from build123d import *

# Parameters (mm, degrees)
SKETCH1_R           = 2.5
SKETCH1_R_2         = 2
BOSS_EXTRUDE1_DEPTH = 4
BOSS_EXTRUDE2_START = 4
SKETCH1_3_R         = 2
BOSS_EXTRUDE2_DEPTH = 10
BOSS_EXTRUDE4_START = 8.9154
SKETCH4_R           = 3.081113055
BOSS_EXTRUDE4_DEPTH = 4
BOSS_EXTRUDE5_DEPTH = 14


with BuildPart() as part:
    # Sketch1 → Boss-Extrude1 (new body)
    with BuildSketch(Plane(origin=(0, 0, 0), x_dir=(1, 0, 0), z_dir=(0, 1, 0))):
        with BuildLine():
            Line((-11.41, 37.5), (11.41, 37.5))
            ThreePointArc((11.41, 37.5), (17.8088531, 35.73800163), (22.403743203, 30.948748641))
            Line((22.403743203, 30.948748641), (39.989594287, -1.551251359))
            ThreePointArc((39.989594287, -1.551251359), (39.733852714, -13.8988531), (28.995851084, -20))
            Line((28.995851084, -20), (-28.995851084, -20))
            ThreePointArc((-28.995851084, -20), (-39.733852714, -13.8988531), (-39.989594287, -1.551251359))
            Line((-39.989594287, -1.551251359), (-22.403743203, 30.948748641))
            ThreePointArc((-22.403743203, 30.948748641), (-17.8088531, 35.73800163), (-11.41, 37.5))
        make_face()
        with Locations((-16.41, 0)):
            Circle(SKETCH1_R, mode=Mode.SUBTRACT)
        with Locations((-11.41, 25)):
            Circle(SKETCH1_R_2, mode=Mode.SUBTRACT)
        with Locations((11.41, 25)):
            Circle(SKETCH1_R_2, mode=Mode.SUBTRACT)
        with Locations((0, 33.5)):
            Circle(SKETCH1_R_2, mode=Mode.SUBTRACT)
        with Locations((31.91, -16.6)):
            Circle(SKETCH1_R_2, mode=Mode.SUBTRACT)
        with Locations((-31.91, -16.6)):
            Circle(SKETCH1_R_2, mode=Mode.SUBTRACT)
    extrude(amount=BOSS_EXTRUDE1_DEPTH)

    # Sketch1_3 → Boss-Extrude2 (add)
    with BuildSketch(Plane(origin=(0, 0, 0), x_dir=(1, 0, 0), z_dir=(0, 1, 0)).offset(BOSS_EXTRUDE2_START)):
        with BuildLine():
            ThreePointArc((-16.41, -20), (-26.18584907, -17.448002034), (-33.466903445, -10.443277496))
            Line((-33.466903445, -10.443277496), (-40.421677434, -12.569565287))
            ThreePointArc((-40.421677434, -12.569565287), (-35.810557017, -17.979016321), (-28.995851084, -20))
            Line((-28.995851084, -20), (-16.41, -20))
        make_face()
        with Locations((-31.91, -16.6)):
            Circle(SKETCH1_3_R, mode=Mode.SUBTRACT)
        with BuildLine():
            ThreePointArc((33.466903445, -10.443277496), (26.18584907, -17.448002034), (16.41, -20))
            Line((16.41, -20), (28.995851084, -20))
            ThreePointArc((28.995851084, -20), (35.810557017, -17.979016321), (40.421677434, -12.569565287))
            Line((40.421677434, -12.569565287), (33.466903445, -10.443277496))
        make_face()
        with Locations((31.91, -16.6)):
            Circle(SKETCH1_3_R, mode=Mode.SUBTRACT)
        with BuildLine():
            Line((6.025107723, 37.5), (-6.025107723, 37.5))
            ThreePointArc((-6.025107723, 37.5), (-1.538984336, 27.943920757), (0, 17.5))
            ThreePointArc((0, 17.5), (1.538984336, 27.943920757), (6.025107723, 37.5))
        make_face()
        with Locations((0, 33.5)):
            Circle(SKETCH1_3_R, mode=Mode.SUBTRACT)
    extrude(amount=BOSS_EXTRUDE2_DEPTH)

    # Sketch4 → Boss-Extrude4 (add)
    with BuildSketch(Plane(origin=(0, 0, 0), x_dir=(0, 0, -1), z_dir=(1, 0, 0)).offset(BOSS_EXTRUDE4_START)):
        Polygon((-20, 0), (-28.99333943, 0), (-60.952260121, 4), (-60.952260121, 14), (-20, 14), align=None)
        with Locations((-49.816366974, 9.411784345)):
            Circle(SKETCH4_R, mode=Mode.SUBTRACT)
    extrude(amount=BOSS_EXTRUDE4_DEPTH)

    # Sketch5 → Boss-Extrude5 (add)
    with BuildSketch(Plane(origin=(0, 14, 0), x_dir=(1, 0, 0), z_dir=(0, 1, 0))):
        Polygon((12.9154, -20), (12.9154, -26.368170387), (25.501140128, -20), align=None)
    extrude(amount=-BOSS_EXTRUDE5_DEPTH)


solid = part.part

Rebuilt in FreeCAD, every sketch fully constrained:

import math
import FreeCAD as App
import Part
import Sketcher

V = App.Vector
Q = App.Units.Quantity


def add_polygon(sketch, points):
    """Adds a closed chain of lines whose ends are joined by coincident constraints."""
    first, n = sketch.GeometryCount, len(points)
    for a, b in zip(points, points[1:] + points[:1]):
        sketch.addGeometry(Part.LineSegment(App.Vector(*a, 0), App.Vector(*b, 0)), False)
    for i in range(n):
        sketch.addConstraint(Sketcher.Constraint("Coincident", first + i, 2, first + (i + 1) % n, 1))

doc = App.newDocument("Part")
body = doc.addObject("PartDesign::Body", "Body")

# Sketch on XZ plane
sketch1 = doc.addObject("Sketcher::SketchObject", "Sketch")
body.addObject(sketch1)
sketch1.AttachmentSupport = (doc.XZ_Plane, [""])
sketch1.MapMode = "FlatFace"
sketch1.addGeometry([
    Part.LineSegment(V(11.4, -37.5, 0), V(-11.4, -37.5, 0)),  # 0
    Part.ArcOfCircle(Part.Circle(V(-11.4, -25, 0), V(0, 0, 1), 12.5), math.radians(-152), math.radians(-90)),  # 1
    Part.LineSegment(V(-22.4, -30.9, 0), V(-40, 1.6, 0)),  # 2
    Part.ArcOfCircle(Part.Circle(V(-29, 7.5, 0), V(0, 0, 1), 12.5), math.radians(90), math.radians(208)),  # 3
    Part.LineSegment(V(-29, 20, 0), V(29, 20, 0)),  # 4
    Part.ArcOfCircle(Part.Circle(V(29, 7.5, 0), V(0, 0, 1), 12.5), math.radians(-28), math.radians(90)),  # 5
    Part.LineSegment(V(40, 1.6, 0), V(22.4, -30.9, 0)),  # 6
    Part.ArcOfCircle(Part.Circle(V(11.4, -25, 0), V(0, 0, 1), 12.5), math.radians(-90), math.radians(-28)),  # 7
    Part.Circle(V(31.9, 16.6, 0), V(0, 0, 1), 2),  # 8
    Part.Circle(V(-31.9, 16.6, 0), V(0, 0, 1), 2),  # 9
    Part.Circle(V(-16.4, 0, 0), V(0, 0, 1), 2.5),  # 10
    Part.Circle(V(11.4, -25, 0), V(0, 0, 1), 2),  # 11
    Part.Circle(V(-11.4, -25, 0), V(0, 0, 1), 2),  # 12
    Part.Circle(V(0, -33.5, 0), V(0, 0, 1), 2),  # 13
], False)
sketch1.addConstraint([
    Sketcher.Constraint("Tangent", 0, 2, 1, 2),
    Sketcher.Constraint("Tangent", 1, 1, 2, 1),
    Sketcher.Constraint("Tangent", 2, 2, 3, 2),
    Sketcher.Constraint("Tangent", 3, 1, 4, 1),
    Sketcher.Constraint("Tangent", 4, 2, 5, 2),
    Sketcher.Constraint("Tangent", 5, 1, 6, 1),
    Sketcher.Constraint("Tangent", 6, 2, 7, 2),
    Sketcher.Constraint("Tangent", 7, 1, 0, 1),
    Sketcher.Constraint("Horizontal", 0),
    Sketcher.Constraint("Horizontal", 4),
    Sketcher.Constraint("Coincident", 11, 3, 7, 3),
    Sketcher.Constraint("Coincident", 12, 3, 1, 3),
    Sketcher.Constraint("Equal", 1, 3),
    Sketcher.Constraint("Equal", 3, 5),
    Sketcher.Constraint("Equal", 5, 7),
    Sketcher.Constraint("Equal", 8, 9),
    Sketcher.Constraint("Equal", 9, 11),
    Sketcher.Constraint("Equal", 11, 12),
    Sketcher.Constraint("Equal", 12, 13),
    Sketcher.Constraint("Symmetric", 8, 3, 9, 3, -2),
    Sketcher.Constraint("Symmetric", 2, 2, 5, 1, -2),
    Sketcher.Constraint("PointOnObject", 10, 3, -1),
    Sketcher.Constraint("PointOnObject", 13, 3, -2),
    Sketcher.Constraint("Diameter", 8, 4.0),
    Sketcher.Constraint("Diameter", 10, 5.0),
    Sketcher.Constraint("Radius", 1, 12.5),
    Sketcher.Constraint("DistanceY", 1, 3, -1, 1, 25.0),
    Sketcher.Constraint("DistanceY", -1, 1, 3, 1, 20.0),
    Sketcher.Constraint("DistanceX", 10, 3, 1, 3, 5.0),
    Sketcher.Constraint("DistanceY", 0, 2, 13, 3, 4.0),
    Sketcher.Constraint("DistanceX", 0, 2, 0, 1, 22.82),
    Sketcher.Constraint("DistanceY", -1, 1, 8, 3, 16.6),
    Sketcher.Constraint("DistanceX", 7, 3, 8, 3, 20.5),
    Sketcher.Constraint("DistanceX", 4, 1, 4, 2, 57.991702),
])
pad1 = doc.addObject("PartDesign::Pad", "Pad")
body.addObject(pad1)
pad1.Profile = sketch1
pad1.Length = 4
pad1.Reversed = True

# Sketch on XZ plane
sketch2 = doc.addObject("Sketcher::SketchObject", "Sketch001")
body.addObject(sketch2)
sketch2.AttachmentSupport = (doc.XZ_Plane, [""])
sketch2.MapMode = "FlatFace"
sketch2.AttachmentOffset = App.Placement(V(0, 0, -4), App.Rotation())
sketch2.addGeometry([
    Part.ArcOfCircle(Part.Circle(V(-16.4, 0, 0), V(0, 0, 1), 20), math.radians(90), math.radians(149)),  # 0
    Part.LineSegment(V(-33.5, 10.4, 0), V(-40.4, 12.6, 0)),  # 1
    Part.ArcOfCircle(Part.Circle(V(-29, 7.5, 0), V(0, 0, 1), 12.5), math.radians(90), math.radians(156)),  # 2
    Part.LineSegment(V(-29, 20, 0), V(-16.4, 20, 0)),  # 3
    Part.Circle(V(-31.9, 16.6, 0), V(0, 0, 1), 2),  # 4
    Part.ArcOfCircle(Part.Circle(V(16.4, 0, 0), V(0, 0, 1), 20), math.radians(31), math.radians(90)),  # 5
    Part.LineSegment(V(16.4, 20, 0), V(29, 20, 0)),  # 6
    Part.ArcOfCircle(Part.Circle(V(29, 7.5, 0), V(0, 0, 1), 12.5), math.radians(24), math.radians(90)),  # 7
    Part.LineSegment(V(40.4, 12.6, 0), V(33.5, 10.4, 0)),  # 8
    Part.Circle(V(31.9, 16.6, 0), V(0, 0, 1), 2),  # 9
    Part.LineSegment(V(6, -37.5, 0), V(-6, -37.5, 0)),  # 10
    Part.ArcOfCircle(Part.Circle(V(-36.2, -17.5, 0), V(0, 0, 1), 36.2), math.radians(-34), math.radians(0)),  # 11
    Part.ArcOfCircle(Part.Circle(V(36.2, -17.5, 0), V(0, 0, 1), 36.2), math.radians(-180), math.radians(-146)),  # 12
    Part.Circle(V(0, -33.5, 0), V(0, 0, 1), 2),  # 13
], False)
sketch2.addConstraint([
    Sketcher.Constraint("Coincident", 0, 2, 1, 1),
    Sketcher.Constraint("Coincident", 1, 2, 2, 2),
    Sketcher.Constraint("Tangent", 2, 1, 3, 1),
    Sketcher.Constraint("Tangent", 3, 2, 0, 1),
    Sketcher.Constraint("Tangent", 5, 2, 6, 1),
    Sketcher.Constraint("Tangent", 6, 2, 7, 2),
    Sketcher.Constraint("Coincident", 7, 1, 8, 1),
    Sketcher.Constraint("Coincident", 8, 2, 5, 1),
    Sketcher.Constraint("Coincident", 10, 2, 11, 1),
    Sketcher.Constraint("Tangent", 11, 2, 12, 1),
    Sketcher.Constraint("Coincident", 12, 2, 10, 1),
    Sketcher.Constraint("Horizontal", 3),
    Sketcher.Constraint("Horizontal", 6),
    Sketcher.Constraint("Horizontal", 10),
    Sketcher.Constraint("Equal", 0, 5),
    Sketcher.Constraint("Equal", 2, 7),
    Sketcher.Constraint("Equal", 4, 9),
    Sketcher.Constraint("Equal", 11, 12),
    Sketcher.Constraint("Equal", 9, 13),
    Sketcher.Constraint("Symmetric", 0, 3, 5, 3, -1, 1),
    Sketcher.Constraint("Symmetric", 2, 3, 7, 3, -2),
    Sketcher.Constraint("Symmetric", 4, 3, 9, 3, -2),
    Sketcher.Constraint("Symmetric", 11, 3, 12, 3, -2),
    Sketcher.Constraint("PointOnObject", 13, 3, -2),
    Sketcher.Constraint("Horizontal", 1, 2, 7, 1),
    Sketcher.Constraint("Horizontal", 0, 2, 8, 2),
    Sketcher.Constraint("Diameter", 4, 4.0),
    Sketcher.Constraint("Radius", 0, 20.0),
    Sketcher.Constraint("Radius", 2, 12.5),
    Sketcher.Constraint("Angle", 1, Q("163 deg")),
    Sketcher.Constraint("DistanceY", 11, 3, 2, 3, 25.0),
    Sketcher.Constraint("DistanceY", 13, 3, 11, 3, 16.0),
    Sketcher.Constraint("DistanceY", 10, 2, 13, 3, 4.0),
    Sketcher.Constraint("DistanceY", -1, 1, 4, 3, 16.6),
    Sketcher.Constraint("DistanceX", 4, 3, 0, 3, 15.5),
    Sketcher.Constraint("DistanceX", 0, 3, -1, 1, 16.41),
    Sketcher.Constraint("Radius", 11, 36.206981),
    Sketcher.Constraint("DistanceX", 3, 1, 3, 2, 12.585851),
    Sketcher.Constraint("Distance", 1, 7.27255),
])
pad2 = doc.addObject("PartDesign::Pad", "Pad001")
body.addObject(pad2)
pad2.Profile = sketch2
pad2.Length = 10
pad2.Reversed = True

# Sketch on YZ plane
sketch3 = doc.addObject("Sketcher::SketchObject", "Sketch002")
body.addObject(sketch3)
sketch3.AttachmentSupport = (doc.YZ_Plane, [""])
sketch3.MapMode = "FlatFace"
sketch3.AttachmentOffset = App.Placement(V(0, 0, 8.9154), App.Rotation())
add_polygon(sketch3, [(0, 29), (0, 20), (14, 20), (14, 61), (4, 61)])  # lines 0-4
sketch3.addGeometry(Part.Circle(V(9.4, 49.8, 0), V(0, 0, 1), 3.1), False)  # 5
sketch3.addConstraint([
    Sketcher.Constraint("Vertical", 0),
    Sketcher.Constraint("Horizontal", 1),
    Sketcher.Constraint("Vertical", 2),
    Sketcher.Constraint("Horizontal", 3),
    Sketcher.Constraint("PointOnObject", 0, 2, -2),
    Sketcher.Constraint("DistanceX", 1, 1, 1, 2, 14.0),
    Sketcher.Constraint("DistanceX", 3, 2, 3, 1, 10.0),
    Sketcher.Constraint("DistanceY", -1, 1, 0, 2, 20.0),
    Sketcher.Constraint("Diameter", 5, 6.162226),
    Sketcher.Constraint("DistanceY", 0, 2, 0, 1, 8.993339),
    Sketcher.Constraint("DistanceY", 2, 1, 2, 2, 40.95226),
    Sketcher.Constraint("DistanceX", -1, 1, 5, 3, 9.411784),
    Sketcher.Constraint("DistanceY", -1, 1, 5, 3, 49.816367),
])
pad3 = doc.addObject("PartDesign::Pad", "Pad002")
body.addObject(pad3)
pad3.Profile = sketch3
pad3.Length = 4

# Sketch on XZ plane
sketch4 = doc.addObject("Sketcher::SketchObject", "Sketch003")
body.addObject(sketch4)
sketch4.AttachmentSupport = (doc.XZ_Plane, [""])
sketch4.MapMode = "FlatFace"
sketch4.AttachmentOffset = App.Placement(V(0, 0, -14), App.Rotation())
add_polygon(sketch4, [(13, 20), (13, 26), (26, 20)])  # lines 0-2
sketch4.addConstraint([
    Sketcher.Constraint("Vertical", 0),
    Sketcher.Constraint("Horizontal", 2),
    Sketcher.Constraint("DistanceY", -1, 1, 1, 2, 20.0),
    Sketcher.Constraint("DistanceX", 2, 2, 2, 1, 12.58574),
    Sketcher.Constraint("DistanceY", 0, 1, 0, 2, 6.36817),
    Sketcher.Constraint("DistanceX", -1, 1, 0, 2, 12.9154),
])
pad4 = doc.addObject("PartDesign::Pad", "Pad003")
body.addObject(pad4)
pad4.Profile = sketch4
pad4.Length = 14

doc.recompute()
